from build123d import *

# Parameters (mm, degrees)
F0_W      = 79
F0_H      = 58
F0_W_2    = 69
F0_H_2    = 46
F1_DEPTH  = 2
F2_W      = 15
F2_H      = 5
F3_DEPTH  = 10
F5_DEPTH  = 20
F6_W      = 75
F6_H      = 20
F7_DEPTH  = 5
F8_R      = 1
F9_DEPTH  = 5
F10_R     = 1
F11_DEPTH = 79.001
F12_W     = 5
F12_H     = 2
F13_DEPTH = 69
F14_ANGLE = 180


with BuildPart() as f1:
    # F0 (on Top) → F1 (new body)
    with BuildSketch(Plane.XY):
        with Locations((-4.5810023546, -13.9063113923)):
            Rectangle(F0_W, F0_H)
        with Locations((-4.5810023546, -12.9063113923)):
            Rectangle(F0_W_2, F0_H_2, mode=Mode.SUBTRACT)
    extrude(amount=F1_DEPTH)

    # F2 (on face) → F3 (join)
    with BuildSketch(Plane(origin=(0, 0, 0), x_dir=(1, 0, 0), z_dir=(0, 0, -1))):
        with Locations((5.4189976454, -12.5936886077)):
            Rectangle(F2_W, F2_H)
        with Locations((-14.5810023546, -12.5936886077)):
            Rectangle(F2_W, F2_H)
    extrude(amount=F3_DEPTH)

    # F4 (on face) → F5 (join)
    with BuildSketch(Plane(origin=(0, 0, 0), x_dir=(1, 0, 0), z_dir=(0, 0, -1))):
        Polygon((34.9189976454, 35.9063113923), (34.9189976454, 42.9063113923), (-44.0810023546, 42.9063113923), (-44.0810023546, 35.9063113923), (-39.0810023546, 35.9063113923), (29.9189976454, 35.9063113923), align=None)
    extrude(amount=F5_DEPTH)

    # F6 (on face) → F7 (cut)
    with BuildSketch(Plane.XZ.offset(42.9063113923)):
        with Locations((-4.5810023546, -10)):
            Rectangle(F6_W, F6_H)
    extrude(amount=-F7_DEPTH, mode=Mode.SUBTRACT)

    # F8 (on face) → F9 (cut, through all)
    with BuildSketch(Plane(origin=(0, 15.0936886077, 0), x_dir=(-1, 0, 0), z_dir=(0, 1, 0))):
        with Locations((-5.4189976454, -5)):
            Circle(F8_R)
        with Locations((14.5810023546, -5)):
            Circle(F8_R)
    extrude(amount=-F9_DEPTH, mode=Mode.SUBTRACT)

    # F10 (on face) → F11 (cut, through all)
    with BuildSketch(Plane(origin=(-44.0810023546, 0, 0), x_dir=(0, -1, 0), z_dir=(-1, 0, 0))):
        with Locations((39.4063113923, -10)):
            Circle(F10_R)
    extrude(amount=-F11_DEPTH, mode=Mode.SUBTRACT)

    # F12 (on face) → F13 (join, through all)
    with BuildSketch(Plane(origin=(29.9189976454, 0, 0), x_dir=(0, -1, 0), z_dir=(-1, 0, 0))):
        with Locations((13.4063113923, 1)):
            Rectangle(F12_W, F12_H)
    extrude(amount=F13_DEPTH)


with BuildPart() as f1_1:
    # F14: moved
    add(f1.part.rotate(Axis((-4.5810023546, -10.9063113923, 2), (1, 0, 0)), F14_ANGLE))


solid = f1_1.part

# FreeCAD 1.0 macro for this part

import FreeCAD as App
import Part
import Sketcher


def add_polygon(sketch, points):
    """Adds a closed chain of lines whose ends are joined by coincident constraints."""
    first, n = sketch.GeometryCount, len(points)
    for a, b in zip(points, points[1:] + points[:1]):
        sketch.addGeometry(Part.LineSegment(App.Vector(*a, 0), App.Vector(*b, 0)), False)
    for i in range(n):
        sketch.addConstraint(Sketcher.Constraint("Coincident", first + i, 2, first + (i + 1) % n, 1))

doc = App.newDocument("Part")
body = doc.addObject("PartDesign::Body", "Body")

# Sketch on XY plane
sketch1 = body.newObject("Sketcher::SketchObject", "Sketch")
sketch1.AttachmentSupport = (doc.getObject("XY_Plane"), [""])
sketch1.MapMode = "FlatFace"
add_polygon(sketch1, [(-44, 15), (-44, -43), (35, -43), (35, 15)])  # lines 0-3
add_polygon(sketch1, [(30, -36), (-39, -36), (-39, 10), (30, 10)])  # lines 4-7
sketch1.addConstraint([
    Sketcher.Constraint("Vertical", 0),
    Sketcher.Constraint("Horizontal", 1),
    Sketcher.Constraint("Vertical", 2),
    Sketcher.Constraint("Horizontal", 3),
    Sketcher.Constraint("Horizontal", 4),
    Sketcher.Constraint("Vertical", 5),
    Sketcher.Constraint("Horizontal", 6),
    Sketcher.Constraint("Vertical", 7),
    Sketcher.Constraint("DistanceX", 1, 1, 1, 2, 79.0),
    Sketcher.Constraint("DistanceX", 4, 2, 4, 1, 69.0),
    Sketcher.Constraint("DistanceY", 0, 2, 0, 1, 58.0),
    Sketcher.Constraint("DistanceY", 5, 1, 5, 2, 46.0),
    Sketcher.Constraint("DistanceX", 0, 2, 4, 2, 5.0),
    Sketcher.Constraint("DistanceY", 0, 2, 4, 2, 7.0),
    Sketcher.Constraint("DistanceY", 0, 2, -1, 1, 42.906311),
    Sketcher.Constraint("DistanceX", 0, 2, -1, 1, 44.081002),
])
pad1 = body.newObject("PartDesign::Pad", "Pad")
pad1.Profile = sketch1
pad1.Length = 2

# Sketch on XY plane
sketch2 = body.newObject("Sketcher::SketchObject", "Sketch001")
sketch2.AttachmentSupport = (doc.getObject("XY_Plane"), [""])
sketch2.MapMode = "FlatFace"
add_polygon(sketch2, [(-2, 10), (-2, 15), (13, 15), (13, 10)])  # lines 0-3
add_polygon(sketch2, [(-22, 10), (-22, 15), (-7, 15), (-7, 10)])  # lines 4-7
sketch2.addConstraint([
    Sketcher.Constraint("Vertical", 0),
    Sketcher.Constraint("Horizontal", 1),
    Sketcher.Constraint("Vertical", 2),
    Sketcher.Constraint("Horizontal", 3),
    Sketcher.Constraint("Vertical", 4),
    Sketcher.Constraint("Horizontal", 5),
    Sketcher.Constraint("Vertical", 6),
    Sketcher.Constraint("Horizontal", 7),
    Sketcher.Constraint("Horizontal", 1, 2, 4, 2),
    Sketcher.Constraint("Horizontal", 3, 2, 6, 2),
    Sketcher.Constraint("Equal", 3, 5),
    Sketcher.Constraint("DistanceX", 1, 1, 1, 2, 15.0),
    Sketcher.Constraint("DistanceY", 0, 1, 0, 2, 5.0),
    Sketcher.Constraint("DistanceX", 4, 2, 0, 2, 20.0),
    Sketcher.Constraint("DistanceY", -1, 1, 0, 2, 15.093689),
    Sketcher.Constraint("DistanceX", 0, 2, -1, 1, 2.081002),
])
pad2 = body.newObject("PartDesign::Pad", "Pad001")
pad2.Profile = sketch2
pad2.Length = 10
pad2.Reversed = True

# Sketch on XY plane
sketch3 = body.newObject("Sketcher::SketchObject", "Sketch002")
sketch3.AttachmentSupport = (doc.getObject("XY_Plane"), [""])
sketch3.MapMode = "FlatFace"
add_polygon(sketch3, [(35, -36), (35, -43), (-44, -43), (-44, -36)])  # lines 0-3
sketch3.addConstraint([
    Sketcher.Constraint("Vertical", 0),
    Sketcher.Constraint("Horizontal", 1),
    Sketcher.Constraint("Vertical", 2),
    Sketcher.Constraint("Horizontal", 3),
    Sketcher.Constraint("DistanceX", 1, 2, 1, 1, 79.0),
    Sketcher.Constraint("DistanceY", 0, 2, 0, 1, 7.0),
    Sketcher.Constraint("DistanceY", 0, 2, -1, 1, 42.906311),
    Sketcher.Constraint("DistanceX", -1, 1, 0, 2, 34.918998),
])
pad3 = body.newObject("PartDesign::Pad", "Pad002")
pad3.Profile = sketch3
pad3.Length = 20
pad3.Reversed = True

# Sketch on XZ plane
sketch4 = body.newObject("Sketcher::SketchObject", "Sketch003")
sketch4.AttachmentSupport = (doc.getObject("XZ_Plane"), [""])
sketch4.MapMode = "FlatFace"
sketch4.AttachmentOffset = App.Placement(App.Vector(0, 0, 42.906311), App.Rotation())
add_polygon(sketch4, [(-42, 0), (-42, -20), (33, -20), (33, 0)])  # lines 0-3
sketch4.addConstraint([
    Sketcher.Constraint("Vertical", 0),
    Sketcher.Constraint("Horizontal", 1),
    Sketcher.Constraint("Vertical", 2),
    Sketcher.Constraint("Horizontal", 3),
    Sketcher.Constraint("PointOnObject", 2, 2, -1),
    Sketcher.Constraint("DistanceX", 1, 1, 1, 2, 75.0),
    Sketcher.Constraint("DistanceY", 0, 2, 0, 1, 20.0),
    Sketcher.Constraint("DistanceX", 0, 2, -1, 1, 42.081002),
])
pocket1 = body.newObject("PartDesign::Pocket", "Pocket")
pocket1.Profile = sketch4
pocket1.Length = 5

# Sketch on XZ plane
sketch5 = body.newObject("Sketcher::SketchObject", "Sketch004")
sketch5.AttachmentSupport = (doc.getObject("XZ_Plane"), [""])
sketch5.MapMode = "FlatFace"
sketch5.AttachmentOffset = App.Placement(App.Vector(0, 0, -15.093689), App.Rotation())
sketch5.addGeometry([
    Part.Circle(App.Vector(5.4, -5, 0), App.Vector(0, 0, 1), 1),
    Part.Circle(App.Vector(-14.6, -5, 0), App.Vector(0, 0, 1), 1),
], False)
sketch5.addConstraint([
    Sketcher.Constraint("Equal", 0, 1),
    Sketcher.Constraint("Horizontal", 0, 3, 1, 3),
    Sketcher.Constraint("Diameter", 0, 2.0),
    Sketcher.Constraint("DistanceY", 0, 3, -1, 1, 5.0),
    Sketcher.Constraint("DistanceX", 1, 3, 0, 3, 20.0),
    Sketcher.Constraint("DistanceX", -1, 1, 0, 3, 5.418998),
])
pocket2 = body.newObject("PartDesign::Pocket", "Pocket001")
pocket2.Profile = sketch5
pocket2.Length = 5
pocket2.Reversed = True

# Sketch on YZ plane
sketch6 = body.newObject("Sketcher::SketchObject", "Sketch005")
sketch6.AttachmentSupport = (doc.getObject("YZ_Plane"), [""])
sketch6.MapMode = "FlatFace"
sketch6.AttachmentOffset = App.Placement(App.Vector(0, 0, -44.081002), App.Rotation())
sketch6.addGeometry(Part.Circle(App.Vector(-39.4, -10, 0), App.Vector(0, 0, 1), 1), False)
sketch6.addConstraint([
    Sketcher.Constraint("Diameter", 0, 2.0),
    Sketcher.Constraint("DistanceY", 0, 3, -1, 1, 10.0),
    Sketcher.Constraint("DistanceX", 0, 3, -1, 1, 39.406311),
])
pocket3 = body.newObject("PartDesign::Pocket", "Pocket002")
pocket3.Profile = sketch6
pocket3.Type = "ThroughAll"
pocket3.Reversed = True

# Sketch on YZ plane
sketch7 = body.newObject("Sketcher::SketchObject", "Sketch006")
sketch7.AttachmentSupport = (doc.getObject("YZ_Plane"), [""])
sketch7.MapMode = "FlatFace"
sketch7.AttachmentOffset = App.Placement(App.Vector(0, 0, 29.918998), App.Rotation())
add_polygon(sketch7, [(-10.9, 2), (-10.9, 0), (-15.9, 0), (-15.9, 2)])  # lines 0-3
sketch7.addConstraint([
    Sketcher.Constraint("Vertical", 0),
    Sketcher.Constraint("Horizontal", 1),
    Sketcher.Constraint("Vertical", 2),
    Sketcher.Constraint("Horizontal", 3),
    Sketcher.Constraint("PointOnObject", 0, 2, -1),
    Sketcher.Constraint("DistanceX", 1, 2, 1, 1, 5.0),
    Sketcher.Constraint("DistanceY", 0, 2, 0, 1, 2.0),
    Sketcher.Constraint("DistanceX", 0, 2, -1, 1, 10.906311),
])
pad4 = body.newObject("PartDesign::Pad", "Pad003")
pad4.Profile = sketch7
pad4.Type = "UpToLast"
pad4.Reversed = True
body2 = doc.addObject("PartDesign::Body", "Body001")
doc.recompute()

body.Placement = App.Placement(App.Vector(0, -21.812623, 4), App.Rotation(App.Vector(1, 0, 0), 180))
boolean = body2.newObject("PartDesign::Boolean", "Boolean")
boolean.Type = "Fuse"
boolean.addObjects([body])

doc.recompute()
